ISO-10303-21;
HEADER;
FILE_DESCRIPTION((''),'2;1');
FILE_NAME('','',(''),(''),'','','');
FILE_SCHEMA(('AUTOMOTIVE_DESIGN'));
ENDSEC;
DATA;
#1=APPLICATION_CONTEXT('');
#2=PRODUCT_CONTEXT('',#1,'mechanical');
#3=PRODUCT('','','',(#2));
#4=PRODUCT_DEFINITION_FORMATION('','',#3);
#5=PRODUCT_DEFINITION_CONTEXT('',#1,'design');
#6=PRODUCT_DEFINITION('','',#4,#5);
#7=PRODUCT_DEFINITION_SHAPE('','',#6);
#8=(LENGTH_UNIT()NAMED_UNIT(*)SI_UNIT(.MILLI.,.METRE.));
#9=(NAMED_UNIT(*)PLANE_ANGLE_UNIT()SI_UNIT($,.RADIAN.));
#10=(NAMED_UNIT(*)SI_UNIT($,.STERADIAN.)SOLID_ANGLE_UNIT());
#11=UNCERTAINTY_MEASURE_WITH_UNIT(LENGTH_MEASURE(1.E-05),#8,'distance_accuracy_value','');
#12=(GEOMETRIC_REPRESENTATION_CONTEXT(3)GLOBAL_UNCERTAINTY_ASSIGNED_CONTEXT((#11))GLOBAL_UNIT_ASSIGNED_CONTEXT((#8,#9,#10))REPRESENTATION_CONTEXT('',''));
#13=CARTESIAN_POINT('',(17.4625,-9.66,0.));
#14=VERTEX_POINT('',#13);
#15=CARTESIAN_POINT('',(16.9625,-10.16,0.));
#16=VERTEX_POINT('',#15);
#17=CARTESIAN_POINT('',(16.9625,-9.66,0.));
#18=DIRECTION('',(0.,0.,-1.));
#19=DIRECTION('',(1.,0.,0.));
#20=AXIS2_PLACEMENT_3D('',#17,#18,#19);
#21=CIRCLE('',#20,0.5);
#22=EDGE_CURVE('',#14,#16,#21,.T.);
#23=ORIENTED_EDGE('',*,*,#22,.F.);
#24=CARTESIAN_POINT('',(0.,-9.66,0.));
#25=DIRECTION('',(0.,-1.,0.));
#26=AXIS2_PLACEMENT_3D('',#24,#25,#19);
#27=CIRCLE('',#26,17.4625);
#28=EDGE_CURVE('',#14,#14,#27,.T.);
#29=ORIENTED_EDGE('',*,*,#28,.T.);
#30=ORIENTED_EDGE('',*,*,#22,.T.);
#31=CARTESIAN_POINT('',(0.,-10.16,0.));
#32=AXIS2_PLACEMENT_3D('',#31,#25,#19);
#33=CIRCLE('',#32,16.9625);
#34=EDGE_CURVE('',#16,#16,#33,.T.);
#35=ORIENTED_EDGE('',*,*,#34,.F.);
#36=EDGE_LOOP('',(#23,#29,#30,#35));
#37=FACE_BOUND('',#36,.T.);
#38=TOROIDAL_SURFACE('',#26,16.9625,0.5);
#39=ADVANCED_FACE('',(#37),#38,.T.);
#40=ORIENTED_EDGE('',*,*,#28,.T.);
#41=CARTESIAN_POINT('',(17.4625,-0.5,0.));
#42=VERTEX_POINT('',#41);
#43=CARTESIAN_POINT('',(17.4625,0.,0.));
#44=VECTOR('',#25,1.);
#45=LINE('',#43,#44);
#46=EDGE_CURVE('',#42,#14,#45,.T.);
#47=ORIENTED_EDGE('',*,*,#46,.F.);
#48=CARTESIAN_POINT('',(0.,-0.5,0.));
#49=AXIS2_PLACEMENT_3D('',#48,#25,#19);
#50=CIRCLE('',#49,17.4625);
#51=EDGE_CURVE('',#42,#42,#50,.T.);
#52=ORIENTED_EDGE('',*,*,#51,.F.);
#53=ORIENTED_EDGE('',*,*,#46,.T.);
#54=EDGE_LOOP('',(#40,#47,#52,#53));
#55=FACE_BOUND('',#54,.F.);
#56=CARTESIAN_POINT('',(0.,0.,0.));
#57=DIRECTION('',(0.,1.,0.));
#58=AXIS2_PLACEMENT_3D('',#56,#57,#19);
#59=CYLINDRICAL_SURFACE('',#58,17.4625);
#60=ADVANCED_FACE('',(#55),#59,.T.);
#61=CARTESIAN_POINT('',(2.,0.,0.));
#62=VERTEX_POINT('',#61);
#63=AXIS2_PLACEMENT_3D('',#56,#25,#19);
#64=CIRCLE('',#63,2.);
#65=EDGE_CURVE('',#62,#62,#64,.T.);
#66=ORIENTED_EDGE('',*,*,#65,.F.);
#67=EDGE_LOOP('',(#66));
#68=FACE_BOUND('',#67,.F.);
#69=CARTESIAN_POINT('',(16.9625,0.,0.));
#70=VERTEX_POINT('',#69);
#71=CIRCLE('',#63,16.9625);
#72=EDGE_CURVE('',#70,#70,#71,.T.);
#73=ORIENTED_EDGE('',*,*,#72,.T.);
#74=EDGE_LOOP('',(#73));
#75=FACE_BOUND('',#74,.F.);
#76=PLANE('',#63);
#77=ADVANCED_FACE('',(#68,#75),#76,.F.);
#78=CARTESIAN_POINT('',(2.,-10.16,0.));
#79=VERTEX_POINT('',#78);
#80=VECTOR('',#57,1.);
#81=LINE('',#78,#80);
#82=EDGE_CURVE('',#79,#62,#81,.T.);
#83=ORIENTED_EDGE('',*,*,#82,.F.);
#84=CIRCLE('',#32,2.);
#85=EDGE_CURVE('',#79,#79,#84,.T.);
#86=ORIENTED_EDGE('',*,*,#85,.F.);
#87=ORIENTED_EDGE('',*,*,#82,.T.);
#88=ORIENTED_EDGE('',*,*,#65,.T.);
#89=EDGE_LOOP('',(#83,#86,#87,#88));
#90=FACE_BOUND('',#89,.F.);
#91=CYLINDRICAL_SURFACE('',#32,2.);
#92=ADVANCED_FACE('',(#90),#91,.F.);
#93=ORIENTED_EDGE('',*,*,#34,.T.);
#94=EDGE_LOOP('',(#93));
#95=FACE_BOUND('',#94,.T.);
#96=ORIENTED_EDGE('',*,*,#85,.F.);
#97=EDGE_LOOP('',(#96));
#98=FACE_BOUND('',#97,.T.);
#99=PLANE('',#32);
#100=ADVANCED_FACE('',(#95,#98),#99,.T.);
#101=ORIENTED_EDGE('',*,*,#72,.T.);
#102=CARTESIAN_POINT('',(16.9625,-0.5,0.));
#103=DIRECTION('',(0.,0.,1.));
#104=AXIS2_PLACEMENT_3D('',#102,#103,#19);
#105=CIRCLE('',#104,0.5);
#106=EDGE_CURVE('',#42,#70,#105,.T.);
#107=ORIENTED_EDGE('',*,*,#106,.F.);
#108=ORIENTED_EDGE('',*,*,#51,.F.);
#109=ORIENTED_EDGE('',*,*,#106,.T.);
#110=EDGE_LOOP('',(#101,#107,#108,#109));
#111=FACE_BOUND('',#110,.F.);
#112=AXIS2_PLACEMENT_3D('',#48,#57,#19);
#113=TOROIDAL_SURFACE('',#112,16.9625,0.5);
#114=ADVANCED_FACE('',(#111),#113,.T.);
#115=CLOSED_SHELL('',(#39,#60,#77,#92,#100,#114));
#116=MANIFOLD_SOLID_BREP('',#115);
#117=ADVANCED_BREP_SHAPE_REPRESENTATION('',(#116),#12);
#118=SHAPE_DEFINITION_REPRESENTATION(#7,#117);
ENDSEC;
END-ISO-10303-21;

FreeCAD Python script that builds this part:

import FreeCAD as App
import Part
import Sketcher
from FreeCAD import Vector
Q = App.Units.Quantity


def edges_at(feature, points):
    """Names of the edges that pass closest to the given points."""
    edges = feature.Shape.Edges
    near = lambda p: min(range(len(edges)), key=lambda i: edges[i].distToShape(Part.Vertex(*p))[0])
    return sorted({f"Edge{near(p) + 1}" for p in points})

doc = App.newDocument("Part")
params = doc.addObject("Spreadsheet::Sheet", "Params")
for row, (alias, value) in enumerate([
    ("sketch1_diameter", "1.375 in"),
    ("pad1_length", "0.4 in"),
    ("pocket1_length", "1 in"),
    ("fillet_radius", "0.5 mm"),
], start=1):
    params.set(f"A{row}", alias)
    params.set(f"B{row}", "=" + value)
    params.setAlias(f"B{row}", alias)

body = doc.addObject("PartDesign::Body", "Body")

# Sketch on XZ plane
sketch1 = body.newObject("Sketcher::SketchObject", "Sketch")
sketch1.AttachmentSupport = (doc.getObject("XZ_Plane"), [""])
sketch1.MapMode = "FlatFace"
sketch1.addGeometry(Part.Circle(Vector(0, 0, 0), Vector(0, 0, 1), 17), False)
sketch1.addConstraint([
    Sketcher.Constraint("Coincident", 0, 3, -1, 1),
    Sketcher.Constraint("Diameter", 0, Q("1.375 in")),
])
sketch1.setExpression("Constraints[1]", "Params.sketch1_diameter")
pad1 = body.newObject("PartDesign::Pad", "Pad")
pad1.Profile = sketch1
pad1.setExpression("Length", "Params.pad1_length")

# Sketch on XZ plane
sketch2 = body.newObject("Sketcher::SketchObject", "Sketch001")
sketch2.AttachmentSupport = (doc.getObject("XZ_Plane"), [""])
sketch2.MapMode = "FlatFace"
sketch2.AttachmentOffset = App.Placement(Vector(0, 0, 0.4 * 25.4), App.Rotation())
sketch2.addGeometry(Part.Circle(Vector(0, 0, 0), Vector(0, 0, 1), 2), False)
sketch2.addConstraint([
    Sketcher.Constraint("Coincident", 0, 3, -1, 1),
    Sketcher.Constraint("Diameter", 0, Q("4 mm")),
])
pocket1 = body.newObject("PartDesign::Pocket", "Pocket")
pocket1.Profile = sketch2
pocket1.setExpression("Length", "Params.pocket1_length")
doc.recompute()

fillet = body.newObject("PartDesign::Fillet", "Fillet")
fillet.Base = (pocket1, edges_at(pocket1, [(-17.462, -10.16, 0), (-17.462, 0, 0)]))
fillet.setExpression("Radius", "Params.fillet_radius")

doc.recompute()
